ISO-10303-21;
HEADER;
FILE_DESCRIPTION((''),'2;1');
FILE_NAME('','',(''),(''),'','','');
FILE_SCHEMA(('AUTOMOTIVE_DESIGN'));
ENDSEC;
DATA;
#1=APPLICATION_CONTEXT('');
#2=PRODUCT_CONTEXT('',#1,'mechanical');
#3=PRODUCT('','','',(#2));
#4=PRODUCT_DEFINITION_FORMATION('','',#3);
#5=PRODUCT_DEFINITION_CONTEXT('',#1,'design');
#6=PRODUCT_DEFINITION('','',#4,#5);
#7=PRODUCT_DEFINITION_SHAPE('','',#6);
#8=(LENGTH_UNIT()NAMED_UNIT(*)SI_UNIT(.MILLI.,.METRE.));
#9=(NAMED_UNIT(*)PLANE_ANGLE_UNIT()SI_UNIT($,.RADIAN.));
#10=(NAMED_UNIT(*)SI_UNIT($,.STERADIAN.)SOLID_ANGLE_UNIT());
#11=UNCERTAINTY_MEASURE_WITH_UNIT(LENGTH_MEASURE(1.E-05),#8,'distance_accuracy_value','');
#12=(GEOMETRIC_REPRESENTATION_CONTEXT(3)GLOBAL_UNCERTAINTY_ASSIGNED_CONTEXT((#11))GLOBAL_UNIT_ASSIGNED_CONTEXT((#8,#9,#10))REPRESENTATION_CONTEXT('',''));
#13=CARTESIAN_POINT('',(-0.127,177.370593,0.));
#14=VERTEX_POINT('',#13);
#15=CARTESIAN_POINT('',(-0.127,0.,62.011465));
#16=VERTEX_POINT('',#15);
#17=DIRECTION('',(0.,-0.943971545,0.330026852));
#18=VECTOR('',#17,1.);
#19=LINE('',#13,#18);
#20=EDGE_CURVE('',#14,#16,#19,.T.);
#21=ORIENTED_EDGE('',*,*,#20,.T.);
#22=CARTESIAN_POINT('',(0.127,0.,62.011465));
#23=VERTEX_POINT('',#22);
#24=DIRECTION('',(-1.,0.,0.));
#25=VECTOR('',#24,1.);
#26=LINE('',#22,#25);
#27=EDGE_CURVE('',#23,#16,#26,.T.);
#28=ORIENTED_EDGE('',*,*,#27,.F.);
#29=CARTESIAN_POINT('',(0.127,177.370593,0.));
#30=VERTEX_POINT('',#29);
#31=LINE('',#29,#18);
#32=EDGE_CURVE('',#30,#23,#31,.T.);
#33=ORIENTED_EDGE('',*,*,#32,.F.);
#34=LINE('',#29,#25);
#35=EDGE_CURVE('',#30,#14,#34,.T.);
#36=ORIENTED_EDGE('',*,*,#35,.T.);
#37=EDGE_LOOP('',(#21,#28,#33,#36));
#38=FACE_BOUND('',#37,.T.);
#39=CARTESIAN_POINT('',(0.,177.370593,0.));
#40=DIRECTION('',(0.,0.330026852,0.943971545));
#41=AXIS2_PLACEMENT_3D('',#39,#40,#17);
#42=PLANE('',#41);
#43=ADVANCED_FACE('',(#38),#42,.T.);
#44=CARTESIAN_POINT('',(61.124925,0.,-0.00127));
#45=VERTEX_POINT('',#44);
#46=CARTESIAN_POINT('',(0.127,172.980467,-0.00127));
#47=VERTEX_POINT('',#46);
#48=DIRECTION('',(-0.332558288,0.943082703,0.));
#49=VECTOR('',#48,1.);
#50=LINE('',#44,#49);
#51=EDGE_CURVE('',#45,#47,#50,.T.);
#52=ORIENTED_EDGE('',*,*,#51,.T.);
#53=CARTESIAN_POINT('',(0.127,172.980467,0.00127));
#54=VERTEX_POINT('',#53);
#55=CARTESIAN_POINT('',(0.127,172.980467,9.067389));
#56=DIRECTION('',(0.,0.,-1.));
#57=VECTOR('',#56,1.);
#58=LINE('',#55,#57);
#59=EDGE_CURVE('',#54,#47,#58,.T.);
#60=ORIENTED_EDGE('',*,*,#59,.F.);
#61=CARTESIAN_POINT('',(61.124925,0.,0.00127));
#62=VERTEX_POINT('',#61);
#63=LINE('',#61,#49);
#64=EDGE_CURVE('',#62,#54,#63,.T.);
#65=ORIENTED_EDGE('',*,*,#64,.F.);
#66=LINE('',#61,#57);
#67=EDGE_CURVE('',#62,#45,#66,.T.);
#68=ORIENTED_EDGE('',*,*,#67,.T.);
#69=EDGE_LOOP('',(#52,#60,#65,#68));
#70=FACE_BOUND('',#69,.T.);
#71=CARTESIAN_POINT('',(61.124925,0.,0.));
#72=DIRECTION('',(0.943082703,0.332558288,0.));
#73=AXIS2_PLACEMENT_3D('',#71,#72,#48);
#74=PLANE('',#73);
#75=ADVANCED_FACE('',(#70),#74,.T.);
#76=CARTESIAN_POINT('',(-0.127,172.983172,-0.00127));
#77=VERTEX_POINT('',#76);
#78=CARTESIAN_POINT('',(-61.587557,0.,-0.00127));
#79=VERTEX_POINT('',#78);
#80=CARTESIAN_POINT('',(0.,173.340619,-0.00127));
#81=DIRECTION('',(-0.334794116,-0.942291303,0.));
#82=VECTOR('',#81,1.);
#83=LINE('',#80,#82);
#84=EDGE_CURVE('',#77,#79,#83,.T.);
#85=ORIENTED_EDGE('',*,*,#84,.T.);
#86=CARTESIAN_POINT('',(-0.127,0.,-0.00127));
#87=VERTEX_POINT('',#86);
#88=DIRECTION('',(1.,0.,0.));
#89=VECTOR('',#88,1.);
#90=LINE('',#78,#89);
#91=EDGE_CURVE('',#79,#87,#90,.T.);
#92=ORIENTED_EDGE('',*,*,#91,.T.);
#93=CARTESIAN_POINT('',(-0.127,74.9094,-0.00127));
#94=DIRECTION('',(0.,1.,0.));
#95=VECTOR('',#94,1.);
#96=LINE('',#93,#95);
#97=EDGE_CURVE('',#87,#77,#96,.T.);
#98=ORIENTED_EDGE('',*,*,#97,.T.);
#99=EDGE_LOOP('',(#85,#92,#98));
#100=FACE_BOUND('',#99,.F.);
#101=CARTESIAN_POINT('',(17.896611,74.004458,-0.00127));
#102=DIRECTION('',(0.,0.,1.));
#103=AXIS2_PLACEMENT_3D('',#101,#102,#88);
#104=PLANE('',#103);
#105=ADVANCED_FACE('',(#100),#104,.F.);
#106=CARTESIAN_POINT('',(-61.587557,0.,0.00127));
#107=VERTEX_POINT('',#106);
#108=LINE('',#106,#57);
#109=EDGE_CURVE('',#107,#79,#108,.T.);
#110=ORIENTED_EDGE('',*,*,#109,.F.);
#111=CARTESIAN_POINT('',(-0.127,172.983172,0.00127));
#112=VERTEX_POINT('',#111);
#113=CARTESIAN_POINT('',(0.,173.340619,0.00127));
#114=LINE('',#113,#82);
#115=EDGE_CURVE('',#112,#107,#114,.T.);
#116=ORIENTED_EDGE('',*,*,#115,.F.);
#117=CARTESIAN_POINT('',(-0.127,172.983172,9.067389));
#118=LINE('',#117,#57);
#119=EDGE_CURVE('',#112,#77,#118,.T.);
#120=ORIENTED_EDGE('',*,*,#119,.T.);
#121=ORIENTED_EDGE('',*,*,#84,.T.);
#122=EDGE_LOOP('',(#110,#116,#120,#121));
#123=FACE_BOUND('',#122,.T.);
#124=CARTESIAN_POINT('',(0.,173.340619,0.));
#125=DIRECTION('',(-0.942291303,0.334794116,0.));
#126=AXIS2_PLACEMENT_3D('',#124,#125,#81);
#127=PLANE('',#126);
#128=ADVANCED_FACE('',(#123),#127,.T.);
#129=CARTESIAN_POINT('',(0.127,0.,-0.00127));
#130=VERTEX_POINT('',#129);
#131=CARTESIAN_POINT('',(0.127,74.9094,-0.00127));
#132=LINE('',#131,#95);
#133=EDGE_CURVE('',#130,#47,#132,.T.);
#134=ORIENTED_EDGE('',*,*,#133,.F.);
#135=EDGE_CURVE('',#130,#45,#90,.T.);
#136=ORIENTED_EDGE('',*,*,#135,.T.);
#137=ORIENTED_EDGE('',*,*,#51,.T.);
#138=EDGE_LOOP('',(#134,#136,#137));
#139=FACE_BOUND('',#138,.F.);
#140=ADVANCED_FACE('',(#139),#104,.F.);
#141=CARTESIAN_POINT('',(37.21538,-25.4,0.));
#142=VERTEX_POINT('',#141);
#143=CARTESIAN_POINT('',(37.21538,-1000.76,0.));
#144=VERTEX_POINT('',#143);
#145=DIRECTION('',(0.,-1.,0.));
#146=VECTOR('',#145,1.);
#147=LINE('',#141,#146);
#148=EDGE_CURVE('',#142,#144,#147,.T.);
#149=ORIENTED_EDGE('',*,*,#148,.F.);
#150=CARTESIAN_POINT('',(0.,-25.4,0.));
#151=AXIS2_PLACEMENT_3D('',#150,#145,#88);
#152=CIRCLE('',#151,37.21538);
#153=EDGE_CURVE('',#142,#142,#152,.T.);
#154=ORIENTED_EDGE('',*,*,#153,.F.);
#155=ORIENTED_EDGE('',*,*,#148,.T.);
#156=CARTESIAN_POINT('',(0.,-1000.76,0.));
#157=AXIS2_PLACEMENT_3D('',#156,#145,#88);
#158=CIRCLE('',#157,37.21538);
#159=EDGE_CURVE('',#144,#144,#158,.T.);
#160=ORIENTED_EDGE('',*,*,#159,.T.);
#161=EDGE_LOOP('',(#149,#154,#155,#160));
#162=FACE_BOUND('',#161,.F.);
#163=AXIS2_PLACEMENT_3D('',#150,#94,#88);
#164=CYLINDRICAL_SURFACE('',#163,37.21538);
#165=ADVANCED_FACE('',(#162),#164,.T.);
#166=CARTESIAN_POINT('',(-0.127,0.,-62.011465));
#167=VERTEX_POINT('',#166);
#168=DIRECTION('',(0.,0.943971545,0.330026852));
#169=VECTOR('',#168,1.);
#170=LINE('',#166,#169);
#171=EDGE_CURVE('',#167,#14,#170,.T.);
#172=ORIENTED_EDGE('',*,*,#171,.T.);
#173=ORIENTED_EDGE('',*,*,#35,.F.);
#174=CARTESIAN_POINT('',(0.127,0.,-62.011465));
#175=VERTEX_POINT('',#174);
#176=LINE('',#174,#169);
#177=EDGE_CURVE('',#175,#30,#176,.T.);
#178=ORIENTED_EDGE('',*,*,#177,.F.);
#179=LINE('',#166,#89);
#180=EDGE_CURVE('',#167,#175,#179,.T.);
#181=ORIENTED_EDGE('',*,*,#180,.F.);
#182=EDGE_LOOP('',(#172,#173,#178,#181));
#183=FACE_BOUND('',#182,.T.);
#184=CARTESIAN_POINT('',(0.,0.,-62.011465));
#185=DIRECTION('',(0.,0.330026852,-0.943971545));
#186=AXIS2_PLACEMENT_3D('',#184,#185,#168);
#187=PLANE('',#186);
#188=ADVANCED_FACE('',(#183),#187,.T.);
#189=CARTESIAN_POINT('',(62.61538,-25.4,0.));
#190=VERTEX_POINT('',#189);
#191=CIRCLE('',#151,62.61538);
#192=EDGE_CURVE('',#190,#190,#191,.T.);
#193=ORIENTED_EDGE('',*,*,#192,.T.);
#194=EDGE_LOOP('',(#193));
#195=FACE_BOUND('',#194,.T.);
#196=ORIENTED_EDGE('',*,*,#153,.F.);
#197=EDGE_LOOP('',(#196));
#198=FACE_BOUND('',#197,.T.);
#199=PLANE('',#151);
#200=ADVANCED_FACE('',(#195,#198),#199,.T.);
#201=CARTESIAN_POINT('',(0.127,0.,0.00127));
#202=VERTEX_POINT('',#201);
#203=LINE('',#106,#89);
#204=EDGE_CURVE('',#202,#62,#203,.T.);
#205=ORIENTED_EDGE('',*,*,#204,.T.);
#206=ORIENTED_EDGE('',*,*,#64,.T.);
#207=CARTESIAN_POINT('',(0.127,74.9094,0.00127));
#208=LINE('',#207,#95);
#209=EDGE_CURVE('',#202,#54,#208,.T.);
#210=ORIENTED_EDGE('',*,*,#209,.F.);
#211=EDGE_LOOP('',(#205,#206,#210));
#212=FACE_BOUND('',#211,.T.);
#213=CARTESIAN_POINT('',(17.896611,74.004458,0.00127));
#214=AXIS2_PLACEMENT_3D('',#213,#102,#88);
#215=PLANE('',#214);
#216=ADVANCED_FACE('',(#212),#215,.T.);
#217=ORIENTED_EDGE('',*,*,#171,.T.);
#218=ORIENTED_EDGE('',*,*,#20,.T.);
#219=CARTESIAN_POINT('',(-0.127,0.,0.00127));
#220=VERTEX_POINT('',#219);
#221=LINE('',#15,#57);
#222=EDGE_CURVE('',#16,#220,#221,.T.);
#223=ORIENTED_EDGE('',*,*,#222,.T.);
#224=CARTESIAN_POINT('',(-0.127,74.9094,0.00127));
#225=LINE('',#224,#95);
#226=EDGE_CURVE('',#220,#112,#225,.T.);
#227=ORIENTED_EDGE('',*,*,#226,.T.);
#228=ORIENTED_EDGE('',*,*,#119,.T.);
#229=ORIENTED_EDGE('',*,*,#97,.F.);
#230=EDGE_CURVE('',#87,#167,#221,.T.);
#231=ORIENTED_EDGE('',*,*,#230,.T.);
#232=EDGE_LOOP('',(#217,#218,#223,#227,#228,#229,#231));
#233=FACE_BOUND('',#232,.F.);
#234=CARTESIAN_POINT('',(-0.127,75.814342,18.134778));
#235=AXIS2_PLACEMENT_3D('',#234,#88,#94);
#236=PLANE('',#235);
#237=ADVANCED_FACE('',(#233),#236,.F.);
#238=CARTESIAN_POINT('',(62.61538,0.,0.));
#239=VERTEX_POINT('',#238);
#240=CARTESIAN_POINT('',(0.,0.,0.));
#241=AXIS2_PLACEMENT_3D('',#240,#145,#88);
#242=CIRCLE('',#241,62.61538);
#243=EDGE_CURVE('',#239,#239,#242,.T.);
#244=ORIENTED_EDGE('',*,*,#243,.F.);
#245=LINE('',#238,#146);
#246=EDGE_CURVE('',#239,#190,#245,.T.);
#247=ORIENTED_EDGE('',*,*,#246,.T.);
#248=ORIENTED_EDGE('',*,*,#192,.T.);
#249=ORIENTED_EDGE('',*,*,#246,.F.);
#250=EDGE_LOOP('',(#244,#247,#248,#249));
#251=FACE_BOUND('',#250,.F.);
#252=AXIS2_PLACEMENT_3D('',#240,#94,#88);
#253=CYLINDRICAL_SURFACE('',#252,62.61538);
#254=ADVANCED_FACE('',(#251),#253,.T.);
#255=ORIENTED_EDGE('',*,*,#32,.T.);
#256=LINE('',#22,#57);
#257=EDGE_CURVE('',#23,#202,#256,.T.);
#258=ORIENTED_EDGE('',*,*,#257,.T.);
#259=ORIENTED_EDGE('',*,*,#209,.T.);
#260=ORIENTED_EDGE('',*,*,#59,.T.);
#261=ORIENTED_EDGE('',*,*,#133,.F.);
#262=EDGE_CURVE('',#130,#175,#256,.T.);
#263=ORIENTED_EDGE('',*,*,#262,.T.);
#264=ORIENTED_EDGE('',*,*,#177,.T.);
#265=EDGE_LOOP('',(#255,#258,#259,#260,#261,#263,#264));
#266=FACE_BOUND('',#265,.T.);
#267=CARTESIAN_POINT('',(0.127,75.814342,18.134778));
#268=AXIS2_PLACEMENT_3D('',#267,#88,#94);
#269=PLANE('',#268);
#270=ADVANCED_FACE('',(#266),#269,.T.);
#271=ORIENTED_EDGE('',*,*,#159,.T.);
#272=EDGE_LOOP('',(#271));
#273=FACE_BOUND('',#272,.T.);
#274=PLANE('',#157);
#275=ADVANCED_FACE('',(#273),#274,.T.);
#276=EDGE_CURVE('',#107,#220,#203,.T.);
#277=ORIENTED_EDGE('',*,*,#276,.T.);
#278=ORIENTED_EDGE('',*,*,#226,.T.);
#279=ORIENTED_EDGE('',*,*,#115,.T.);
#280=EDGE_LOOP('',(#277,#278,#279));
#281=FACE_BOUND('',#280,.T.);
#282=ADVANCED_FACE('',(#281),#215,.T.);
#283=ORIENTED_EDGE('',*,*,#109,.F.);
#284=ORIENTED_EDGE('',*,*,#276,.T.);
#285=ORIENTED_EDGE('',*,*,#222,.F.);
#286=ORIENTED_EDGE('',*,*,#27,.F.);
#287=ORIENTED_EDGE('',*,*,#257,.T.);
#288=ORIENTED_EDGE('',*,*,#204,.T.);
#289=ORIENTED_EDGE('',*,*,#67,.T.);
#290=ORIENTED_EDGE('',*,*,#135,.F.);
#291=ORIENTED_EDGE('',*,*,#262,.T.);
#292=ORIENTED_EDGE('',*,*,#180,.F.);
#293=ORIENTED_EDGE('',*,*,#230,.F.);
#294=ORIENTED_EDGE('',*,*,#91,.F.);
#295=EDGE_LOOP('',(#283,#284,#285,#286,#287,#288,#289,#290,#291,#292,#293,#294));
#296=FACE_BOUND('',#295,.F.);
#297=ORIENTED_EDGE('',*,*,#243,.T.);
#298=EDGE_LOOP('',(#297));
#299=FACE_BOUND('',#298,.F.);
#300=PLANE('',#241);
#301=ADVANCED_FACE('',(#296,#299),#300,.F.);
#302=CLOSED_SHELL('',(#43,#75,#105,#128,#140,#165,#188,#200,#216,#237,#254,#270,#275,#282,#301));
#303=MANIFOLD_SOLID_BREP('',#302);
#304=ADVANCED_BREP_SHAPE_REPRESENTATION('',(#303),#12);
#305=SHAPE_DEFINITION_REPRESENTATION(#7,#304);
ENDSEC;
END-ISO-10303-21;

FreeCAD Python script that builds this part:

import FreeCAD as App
import Part
import Sketcher
from FreeCAD import Vector
Q = App.Units.Quantity

doc = App.newDocument("Part")
body = doc.addObject("PartDesign::Body", "Body")

sketch1 = body.newObject("Sketcher::SketchObject", "Sketch")
sketch1.AttachmentSupport = (doc.getObject("XZ_Plane"), [""])
sketch1.MapMode = "FlatFace"
sketch1.addGeometry(Part.Circle(Vector(0, 0, 0), Vector(0, 0, 1), 63), False)
sketch1.addConstraint(Sketcher.Constraint("Coincident", 0, 3, -1, 1))
sketch1.addConstraint(Sketcher.Constraint("Diameter", 0, 125.23076))
pad1 = body.newObject("PartDesign::Pad", "Pad")
pad1.Profile = sketch1
pad1.Length = Q("1 in")

sketch2 = body.newObject("Sketcher::SketchObject", "Sketch001")
sketch2.AttachmentSupport = (doc.getObject("XY_Plane"), [""])
sketch2.MapMode = "FlatFace"
sketch2.addGeometry(Part.LineSegment(Vector(61, 0, 0), Vector(0, 173, 0)), False)
sketch2.addGeometry(Part.LineSegment(Vector(0, 173, 0), Vector(-62, 0, 0)), False)
sketch2.addGeometry(Part.LineSegment(Vector(-62, 0, 0), Vector(61, 0, 0)), False)
sketch2.addConstraint(Sketcher.Constraint("Coincident", 0, 2, 1, 1))
sketch2.addConstraint(Sketcher.Constraint("Coincident", 1, 2, 2, 1))
sketch2.addConstraint(Sketcher.Constraint("Coincident", 2, 2, 0, 1))
sketch2.addConstraint(Sketcher.Constraint("Horizontal", 2))
sketch2.addConstraint(Sketcher.Constraint("PointOnObject", 0, 2, -2))
sketch2.addConstraint(Sketcher.Constraint("PointOnObject", 1, 2, -1))
sketch2.addConstraint(Sketcher.Constraint("Angle", 1, Q("-109.560019 deg")))
sketch2.addConstraint(Sketcher.Constraint("DistanceX", 2, 1, 2, 2, Q("4.8312001 in")))
sketch2.addConstraint(Sketcher.Constraint("Distance", 0, 183.80214))
pad2 = body.newObject("PartDesign::Pad", "Pad001")
pad2.Profile = sketch2
pad2.Length = Q("0.0001 in")
pad2.Midplane = True

sketch3 = body.newObject("Sketcher::SketchObject", "Sketch002")
sketch3.AttachmentSupport = (doc.getObject("YZ_Plane"), [""])
sketch3.MapMode = "FlatFace"
sketch3.addGeometry(Part.LineSegment(Vector(0, 62, 0), Vector(0, -62, 0)), False)
sketch3.addGeometry(Part.LineSegment(Vector(0, -62, 0), Vector(177, 0, 0)), False)
sketch3.addGeometry(Part.LineSegment(Vector(177, 0, 0), Vector(0, 62, 0)), False)
sketch3.addConstraint(Sketcher.Constraint("Coincident", 0, 2, 1, 1))
sketch3.addConstraint(Sketcher.Constraint("Coincident", 1, 2, 2, 1))
sketch3.addConstraint(Sketcher.Constraint("Coincident", 2, 2, 0, 1))
sketch3.addConstraint(Sketcher.Constraint("Vertical", 0))
sketch3.addConstraint(Sketcher.Constraint("Symmetric", 0, 2, 2, 2, -1, 1))
sketch3.addConstraint(Sketcher.Constraint("PointOnObject", 1, 2, -1))
sketch3.addConstraint(Sketcher.Constraint("DistanceY", 0, 2, 0, 1, 124.02293))
sketch3.addConstraint(Sketcher.Constraint("Distance", 1, 187.898241))
pad3 = body.newObject("PartDesign::Pad", "Pad002")
pad3.Profile = sketch3
pad3.Length = Q("0.01 in")
pad3.Midplane = True

sketch4 = body.newObject("Sketcher::SketchObject", "Sketch003")
sketch4.AttachmentSupport = (doc.getObject("XZ_Plane"), [""])
sketch4.MapMode = "FlatFace"
sketch4.AttachmentOffset = App.Placement(Vector(0, 0, 1 * 25.4), App.Rotation())
sketch4.addGeometry(Part.Circle(Vector(0, 0, 0), Vector(0, 0, 1), 37), False)
sketch4.addConstraint(Sketcher.Constraint("Coincident", 0, 3, -1, 1))
sketch4.addConstraint(Sketcher.Constraint("Diameter", 0, 74.43076))
pad4 = body.newObject("PartDesign::Pad", "Pad003")
pad4.Profile = sketch4
pad4.Length = Q("38.4 in")

doc.recompute()
